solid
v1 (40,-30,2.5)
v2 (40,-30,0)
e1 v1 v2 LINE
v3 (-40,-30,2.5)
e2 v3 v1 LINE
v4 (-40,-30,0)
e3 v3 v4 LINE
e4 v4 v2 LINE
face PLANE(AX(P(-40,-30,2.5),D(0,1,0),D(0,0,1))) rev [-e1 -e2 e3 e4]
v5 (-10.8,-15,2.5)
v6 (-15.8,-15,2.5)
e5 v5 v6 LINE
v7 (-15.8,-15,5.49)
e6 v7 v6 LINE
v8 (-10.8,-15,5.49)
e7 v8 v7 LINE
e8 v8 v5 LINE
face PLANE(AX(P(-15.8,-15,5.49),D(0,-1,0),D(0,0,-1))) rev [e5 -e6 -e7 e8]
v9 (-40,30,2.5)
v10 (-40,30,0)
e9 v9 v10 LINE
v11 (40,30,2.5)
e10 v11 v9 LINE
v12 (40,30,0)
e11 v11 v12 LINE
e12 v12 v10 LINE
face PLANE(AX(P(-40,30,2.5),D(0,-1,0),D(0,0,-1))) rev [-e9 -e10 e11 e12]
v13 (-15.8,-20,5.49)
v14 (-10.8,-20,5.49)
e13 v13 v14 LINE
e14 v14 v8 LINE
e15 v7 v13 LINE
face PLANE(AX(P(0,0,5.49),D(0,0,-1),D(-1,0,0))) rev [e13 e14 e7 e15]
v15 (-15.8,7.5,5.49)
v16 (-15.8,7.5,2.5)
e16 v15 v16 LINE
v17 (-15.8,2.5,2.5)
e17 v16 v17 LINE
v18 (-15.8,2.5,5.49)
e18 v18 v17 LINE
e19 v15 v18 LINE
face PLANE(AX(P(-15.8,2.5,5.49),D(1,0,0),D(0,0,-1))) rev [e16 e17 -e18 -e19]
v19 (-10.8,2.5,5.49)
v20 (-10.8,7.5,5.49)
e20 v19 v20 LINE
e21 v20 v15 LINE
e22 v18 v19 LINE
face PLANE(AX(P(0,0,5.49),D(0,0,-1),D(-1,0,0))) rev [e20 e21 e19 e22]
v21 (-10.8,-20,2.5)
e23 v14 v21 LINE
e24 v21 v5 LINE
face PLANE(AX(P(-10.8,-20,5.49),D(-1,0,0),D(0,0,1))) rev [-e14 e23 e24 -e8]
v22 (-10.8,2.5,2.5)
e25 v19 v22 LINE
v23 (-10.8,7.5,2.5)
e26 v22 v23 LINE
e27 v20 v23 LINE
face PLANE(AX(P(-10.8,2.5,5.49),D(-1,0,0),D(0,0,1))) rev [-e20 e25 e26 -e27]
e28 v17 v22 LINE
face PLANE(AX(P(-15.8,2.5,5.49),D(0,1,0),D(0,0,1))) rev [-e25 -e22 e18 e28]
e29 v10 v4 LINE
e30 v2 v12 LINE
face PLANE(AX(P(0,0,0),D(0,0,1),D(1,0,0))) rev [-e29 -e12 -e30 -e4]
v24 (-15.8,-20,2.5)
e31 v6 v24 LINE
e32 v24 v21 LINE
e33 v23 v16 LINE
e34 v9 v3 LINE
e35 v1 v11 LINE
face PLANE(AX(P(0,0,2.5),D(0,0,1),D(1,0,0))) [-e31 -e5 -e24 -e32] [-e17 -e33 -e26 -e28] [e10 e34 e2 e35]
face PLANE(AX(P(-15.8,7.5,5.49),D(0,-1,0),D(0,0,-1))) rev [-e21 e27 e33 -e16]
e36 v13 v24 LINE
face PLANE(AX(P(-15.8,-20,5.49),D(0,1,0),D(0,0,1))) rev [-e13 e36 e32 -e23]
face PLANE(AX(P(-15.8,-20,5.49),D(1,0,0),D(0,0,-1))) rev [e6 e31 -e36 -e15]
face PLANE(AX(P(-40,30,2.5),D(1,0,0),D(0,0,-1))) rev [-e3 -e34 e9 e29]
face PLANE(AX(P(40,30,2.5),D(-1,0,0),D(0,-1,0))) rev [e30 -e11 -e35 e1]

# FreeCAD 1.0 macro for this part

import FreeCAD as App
import Part
import Sketcher
from FreeCAD import Vector

doc = App.newDocument("Part")
params = doc.addObject("Spreadsheet::Sheet", "Params")
for row, (alias, value) in enumerate([
    ("sketch1_width", "80 mm"),
    ("sketch1_height", "60 mm"),
    ("pad1_length", "2.5 mm"),
    ("sketch2_width", "5 mm"),
    ("pad2_length", "2.99 mm"),
], start=1):
    params.set(f"A{row}", alias)
    params.set(f"B{row}", "=" + value)
    params.setAlias(f"B{row}", alias)

body = doc.addObject("PartDesign::Body", "Body")

sketch1 = doc.addObject("Sketcher::SketchObject", "Sketch")
body.addObject(sketch1)
sketch1.AttachmentSupport = (doc.XY_Plane, [""])
sketch1.MapMode = "FlatFace"
sketch1.addGeometry([
    Part.LineSegment(Vector(-40, 30, 0), Vector(-40, -30, 0)),
    Part.LineSegment(Vector(-40, -30, 0), Vector(40, -30, 0)),
    Part.LineSegment(Vector(40, -30, 0), Vector(40, 30, 0)),
    Part.LineSegment(Vector(40, 30, 0), Vector(-40, 30, 0)),
], False)
sketch1.addConstraint([
    Sketcher.Constraint("Coincident", 0, 2, 1, 1),
    Sketcher.Constraint("Coincident", 1, 2, 2, 1),
    Sketcher.Constraint("Coincident", 2, 2, 3, 1),
    Sketcher.Constraint("Coincident", 3, 2, 0, 1),
    Sketcher.Constraint("Vertical", 0),
    Sketcher.Constraint("Horizontal", 1),
    Sketcher.Constraint("Vertical", 2),
    Sketcher.Constraint("Horizontal", 3),
    Sketcher.Constraint("Symmetric", 0, 2, 2, 2, -1, 1),
    Sketcher.Constraint("DistanceX", 1, 1, 1, 2, 80.0),
    Sketcher.Constraint("DistanceY", 0, 2, 0, 1, 60.0),
])
sketch1.setExpression("Constraints[9]", "Params.sketch1_width")
sketch1.setExpression("Constraints[10]", "Params.sketch1_height")
pad1 = doc.addObject("PartDesign::Pad", "Pad")
body.addObject(pad1)
pad1.Profile = sketch1
pad1.setExpression("Length", "Params.pad1_length")

sketch2 = doc.addObject("Sketcher::SketchObject", "Sketch001")
body.addObject(sketch2)
sketch2.AttachmentSupport = (doc.XY_Plane, [""])
sketch2.MapMode = "FlatFace"
sketch2.AttachmentOffset = App.Placement(Vector(0, 0, 2.5), App.Rotation())
sketch2.addGeometry([
    Part.LineSegment(Vector(-15.8, -15, 0), Vector(-15.8, -20, 0)),
    Part.LineSegment(Vector(-15.8, -20, 0), Vector(-10.8, -20, 0)),
    Part.LineSegment(Vector(-10.8, -20, 0), Vector(-10.8, -15, 0)),
    Part.LineSegment(Vector(-10.8, -15, 0), Vector(-15.8, -15, 0)),
    Part.LineSegment(Vector(-15.8, 7.5, 0), Vector(-15.8, 2.5, 0)),
    Part.LineSegment(Vector(-15.8, 2.5, 0), Vector(-10.8, 2.5, 0)),
    Part.LineSegment(Vector(-10.8, 2.5, 0), Vector(-10.8, 7.5, 0)),
    Part.LineSegment(Vector(-10.8, 7.5, 0), Vector(-15.8, 7.5, 0)),
], False)
sketch2.addConstraint([
    Sketcher.Constraint("Coincident", 0, 2, 1, 1),
    Sketcher.Constraint("Coincident", 1, 2, 2, 1),
    Sketcher.Constraint("Coincident", 2, 2, 3, 1),
    Sketcher.Constraint("Coincident", 3, 2, 0, 1),
    Sketcher.Constraint("Coincident", 4, 2, 5, 1),
    Sketcher.Constraint("Coincident", 5, 2, 6, 1),
    Sketcher.Constraint("Coincident", 6, 2, 7, 1),
    Sketcher.Constraint("Coincident", 7, 2, 4, 1),
    Sketcher.Constraint("Vertical", 0),
    Sketcher.Constraint("Horizontal", 1),
    Sketcher.Constraint("Vertical", 2),
    Sketcher.Constraint("Horizontal", 3),
    Sketcher.Constraint("Vertical", 4),
    Sketcher.Constraint("Horizontal", 5),
    Sketcher.Constraint("Vertical", 6),
    Sketcher.Constraint("Horizontal", 7),
    Sketcher.Constraint("Vertical", 3, 2, 4, 2),
    Sketcher.Constraint("Vertical", 2, 2, 5, 2),
    Sketcher.Constraint("Equal", 7, 0),
    Sketcher.Constraint("Equal", 2, 4),
    Sketcher.Constraint("DistanceX", 1, 1, 1, 2, 5.0),
    Sketcher.Constraint("DistanceY", 0, 2, -1, 1, 20.0),
    Sketcher.Constraint("DistanceX", 0, 2, -1, 1, 15.8),
    Sketcher.Constraint("DistanceY", -1, 1, 4, 2, 2.5),
])
sketch2.setExpression("Constraints[20]", "Params.sketch2_width")
pad2 = doc.addObject("PartDesign::Pad", "Pad001")
body.addObject(pad2)
pad2.Profile = sketch2
pad2.setExpression("Length", "Params.pad2_length")

doc.recompute()
